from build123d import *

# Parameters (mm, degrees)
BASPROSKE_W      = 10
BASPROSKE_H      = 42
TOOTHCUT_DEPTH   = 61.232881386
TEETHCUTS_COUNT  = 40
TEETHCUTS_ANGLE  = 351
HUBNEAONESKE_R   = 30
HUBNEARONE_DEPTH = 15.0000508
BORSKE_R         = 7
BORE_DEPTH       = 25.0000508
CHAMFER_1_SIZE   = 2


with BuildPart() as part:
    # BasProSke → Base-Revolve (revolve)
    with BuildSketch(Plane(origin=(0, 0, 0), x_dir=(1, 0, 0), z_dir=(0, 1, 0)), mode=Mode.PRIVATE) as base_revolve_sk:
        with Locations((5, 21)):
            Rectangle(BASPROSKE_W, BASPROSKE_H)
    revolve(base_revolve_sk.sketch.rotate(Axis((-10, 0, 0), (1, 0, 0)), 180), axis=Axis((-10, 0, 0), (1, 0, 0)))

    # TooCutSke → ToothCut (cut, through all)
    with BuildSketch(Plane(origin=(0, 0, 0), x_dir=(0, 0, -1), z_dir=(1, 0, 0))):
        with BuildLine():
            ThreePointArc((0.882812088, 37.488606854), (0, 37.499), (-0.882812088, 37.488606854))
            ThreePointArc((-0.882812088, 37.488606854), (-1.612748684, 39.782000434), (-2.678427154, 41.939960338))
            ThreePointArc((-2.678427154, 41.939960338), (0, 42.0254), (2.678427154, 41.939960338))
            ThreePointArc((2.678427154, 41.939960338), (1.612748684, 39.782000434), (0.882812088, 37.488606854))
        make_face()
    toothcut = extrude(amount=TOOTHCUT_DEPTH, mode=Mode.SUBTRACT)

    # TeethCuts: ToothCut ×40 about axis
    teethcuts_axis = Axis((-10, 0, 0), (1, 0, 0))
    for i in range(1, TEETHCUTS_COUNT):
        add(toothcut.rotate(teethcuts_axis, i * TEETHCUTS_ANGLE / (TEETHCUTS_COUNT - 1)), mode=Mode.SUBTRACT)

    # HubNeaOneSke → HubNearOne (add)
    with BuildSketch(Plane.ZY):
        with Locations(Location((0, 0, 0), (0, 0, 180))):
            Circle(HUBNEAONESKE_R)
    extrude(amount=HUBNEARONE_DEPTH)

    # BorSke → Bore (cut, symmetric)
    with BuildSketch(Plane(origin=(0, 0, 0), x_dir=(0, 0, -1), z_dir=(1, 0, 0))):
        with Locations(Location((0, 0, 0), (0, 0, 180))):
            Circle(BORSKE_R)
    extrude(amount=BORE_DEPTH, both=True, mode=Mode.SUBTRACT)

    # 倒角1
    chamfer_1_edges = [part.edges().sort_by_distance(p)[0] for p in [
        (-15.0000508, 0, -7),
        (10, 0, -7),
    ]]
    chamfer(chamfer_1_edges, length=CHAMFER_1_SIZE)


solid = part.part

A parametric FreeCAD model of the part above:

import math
import FreeCAD as App
import Part
import Sketcher


def edges_at(feature, points):
    """Names of the edges that pass closest to the given points."""
    edges = feature.Shape.Edges
    near = lambda p: min(range(len(edges)), key=lambda i: edges[i].distToShape(Part.Vertex(*p))[0])
    return sorted({f"Edge{near(p) + 1}" for p in points})

doc = App.newDocument("Part")
body = doc.addObject("PartDesign::Body", "Body")

sketch1 = body.newObject("Sketcher::SketchObject", "Sketch")
sketch1.AttachmentSupport = (doc.getObject("XZ_Plane"), [""])
sketch1.MapMode = "FlatFace"
sketch1.addGeometry([
    Part.LineSegment(App.Vector(0, -42, 0), App.Vector(0, 0, 0)),
    Part.LineSegment(App.Vector(0, 0, 0), App.Vector(10, 0, 0)),
    Part.LineSegment(App.Vector(10, 0, 0), App.Vector(10, -42, 0)),
    Part.LineSegment(App.Vector(10, -42, 0), App.Vector(0, -42, 0)),
], False)
sketch1.addConstraint([
    Sketcher.Constraint("Coincident", 0, 2, 1, 1),
    Sketcher.Constraint("Coincident", 1, 2, 2, 1),
    Sketcher.Constraint("Coincident", 2, 2, 3, 1),
    Sketcher.Constraint("Coincident", 3, 2, 0, 1),
    Sketcher.Constraint("Vertical", 0),
    Sketcher.Constraint("Horizontal", 1),
    Sketcher.Constraint("Vertical", 2),
    Sketcher.Constraint("Horizontal", 3),
    Sketcher.Constraint("Coincident", 0, 2, -1, 1),
    Sketcher.Constraint("DistanceX", 1, 1, 1, 2, 10.0),
    Sketcher.Constraint("DistanceY", 0, 1, 0, 2, 42.0),
])
revolution = body.newObject("PartDesign::Revolution", "Revolution")
revolution.Profile = sketch1
revolution.ReferenceAxis = (sketch1, ["H_Axis"])
revolution.Angle = 360

sketch2 = body.newObject("Sketcher::SketchObject", "Sketch001")
sketch2.AttachmentSupport = (doc.getObject("YZ_Plane"), [""])
sketch2.MapMode = "FlatFace"
sketch2.addGeometry([
    Part.ArcOfCircle(Part.Circle(App.Vector(0, 0, 0), App.Vector(0, 0, 1), 37.5), math.radians(-1.35), math.radians(1.35)),
    Part.ArcOfCircle(Part.Circle(App.Vector(33.8, -16.5, 0), App.Vector(0, 0, 1), 16), math.radians(59.4), math.radians(76.66)),
    Part.ArcOfCircle(Part.Circle(App.Vector(0, 0, 0), App.Vector(0, 0, 1), 42), math.radians(-3.65), math.radians(3.65)),
    Part.ArcOfCircle(Part.Circle(App.Vector(33.8, 16.5, 0), App.Vector(0, 0, 1), 16), math.radians(-76.66), math.radians(-59.4)),
], False)
sketch2.addConstraint([
    Sketcher.Constraint("Coincident", 0, 1, 1, 2),
    Sketcher.Constraint("Coincident", 1, 1, 2, 1),
    Sketcher.Constraint("Coincident", 2, 2, 3, 2),
    Sketcher.Constraint("Coincident", 3, 1, 0, 2),
    Sketcher.Constraint("Coincident", 0, 3, -1, 1),
    Sketcher.Constraint("Coincident", 2, 3, -1, 1),
    Sketcher.Constraint("Equal", 1, 3),
    Sketcher.Constraint("Symmetric", 1, 3, 3, 3, -1),
    Sketcher.Constraint("Radius", 1, 16.0),
    Sketcher.Constraint("Radius", 0, 37.499002),
    Sketcher.Constraint("Radius", 2, 42.0254),
    Sketcher.Constraint("DistanceY", 0, 1, 3, 3, 17.333798),
    Sketcher.Constraint("DistanceX", 1, 3, 1, 1, 8.143502),
])
pocket1 = body.newObject("PartDesign::Pocket", "Pocket")
pocket1.Profile = sketch2
pocket1.Type = "ThroughAll"
pocket1.Reversed = True
doc.recompute()

polarpattern = body.newObject("PartDesign::PolarPattern", "PolarPattern")
polarpattern.Originals = [pocket1]
polarpattern.Axis = (doc.getObject("X_Axis"), [""])
polarpattern.Angle = 360
polarpattern.Occurrences = 40
body.Tip = polarpattern

sketch3 = body.newObject("Sketcher::SketchObject", "Sketch002")
sketch3.AttachmentSupport = (doc.getObject("YZ_Plane"), [""])
sketch3.MapMode = "FlatFace"
sketch3.addGeometry(Part.Circle(App.Vector(0, 0, 0), App.Vector(0, 0, 1), 30), False)
sketch3.addConstraint([
    Sketcher.Constraint("Coincident", 0, 3, -1, 1),
    Sketcher.Constraint("Diameter", 0, 60.0),
])
pad1 = body.newObject("PartDesign::Pad", "Pad")
pad1.Profile = sketch3
pad1.Length = 15.000051
pad1.Reversed = True

sketch4 = body.newObject("Sketcher::SketchObject", "Sketch003")
sketch4.AttachmentSupport = (doc.getObject("YZ_Plane"), [""])
sketch4.MapMode = "FlatFace"
sketch4.addGeometry(Part.Circle(App.Vector(0, 0, 0), App.Vector(0, 0, 1), 7), False)
sketch4.addConstraint([
    Sketcher.Constraint("Coincident", 0, 3, -1, 1),
    Sketcher.Constraint("Diameter", 0, 14.0),
])
pocket2 = body.newObject("PartDesign::Pocket", "Pocket001")
pocket2.Profile = sketch4
pocket2.Length = 50.000102
pocket2.Midplane = True
doc.recompute()

chamfer = body.newObject("PartDesign::Chamfer", "Chamfer")
chamfer.Base = (pocket2, edges_at(pocket2, [(-15, 0, -7), (10, 0, -7)]))
chamfer.Size = 2

doc.recompute()
